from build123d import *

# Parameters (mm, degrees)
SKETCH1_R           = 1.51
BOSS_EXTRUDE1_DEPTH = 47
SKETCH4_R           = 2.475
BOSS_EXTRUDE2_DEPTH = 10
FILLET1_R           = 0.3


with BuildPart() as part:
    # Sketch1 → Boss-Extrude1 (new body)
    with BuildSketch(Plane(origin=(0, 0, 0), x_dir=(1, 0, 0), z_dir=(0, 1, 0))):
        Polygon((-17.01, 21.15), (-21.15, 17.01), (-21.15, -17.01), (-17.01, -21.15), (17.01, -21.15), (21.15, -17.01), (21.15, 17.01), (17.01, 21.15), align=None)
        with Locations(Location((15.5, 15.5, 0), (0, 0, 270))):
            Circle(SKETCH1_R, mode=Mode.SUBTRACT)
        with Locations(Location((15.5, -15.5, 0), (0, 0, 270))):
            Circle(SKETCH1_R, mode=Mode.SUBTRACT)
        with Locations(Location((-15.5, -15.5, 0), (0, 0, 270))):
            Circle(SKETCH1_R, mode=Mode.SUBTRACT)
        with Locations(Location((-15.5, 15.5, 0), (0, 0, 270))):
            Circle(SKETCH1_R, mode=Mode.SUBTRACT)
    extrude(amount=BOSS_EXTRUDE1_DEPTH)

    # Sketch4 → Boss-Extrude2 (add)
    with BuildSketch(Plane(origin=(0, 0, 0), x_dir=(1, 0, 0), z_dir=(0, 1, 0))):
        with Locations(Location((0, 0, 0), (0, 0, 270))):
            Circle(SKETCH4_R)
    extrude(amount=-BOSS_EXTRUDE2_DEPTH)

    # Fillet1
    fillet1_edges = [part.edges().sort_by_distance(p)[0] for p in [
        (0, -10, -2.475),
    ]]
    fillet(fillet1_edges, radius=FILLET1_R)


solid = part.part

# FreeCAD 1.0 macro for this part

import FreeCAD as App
import Part
import Sketcher
from FreeCAD import Vector


def edges_at(feature, points):
    """Names of the edges that pass closest to the given points."""
    edges = feature.Shape.Edges
    near = lambda p: min(range(len(edges)), key=lambda i: edges[i].distToShape(Part.Vertex(*p))[0])
    return sorted({f"Edge{near(p) + 1}" for p in points})

doc = App.newDocument("Part")
body = doc.addObject("PartDesign::Body", "Body")

# Sketch on XZ plane
sketch1 = body.newObject("Sketcher::SketchObject", "Sketch")
sketch1.AttachmentSupport = (doc.getObject("XZ_Plane"), [""])
sketch1.MapMode = "FlatFace"
sketch1.addGeometry([
    Part.LineSegment(Vector(-17, -21.1, 0), Vector(-21.1, -17, 0)),  # 0
    Part.LineSegment(Vector(-21.1, -17, 0), Vector(-21.1, 17, 0)),  # 1
    Part.LineSegment(Vector(-21.1, 17, 0), Vector(-17, 21.1, 0)),  # 2
    Part.LineSegment(Vector(-17, 21.1, 0), Vector(17, 21.1, 0)),  # 3
    Part.LineSegment(Vector(17, 21.1, 0), Vector(21.1, 17, 0)),  # 4
    Part.LineSegment(Vector(21.1, 17, 0), Vector(21.1, -17, 0)),  # 5
    Part.LineSegment(Vector(21.1, -17, 0), Vector(17, -21.1, 0)),  # 6
    Part.LineSegment(Vector(17, -21.1, 0), Vector(-17, -21.1, 0)),  # 7
    Part.Circle(Vector(-15.5, 15.5, 0), Vector(0, 0, 1), 1.5),  # 8
    Part.Circle(Vector(15.5, 15.5, 0), Vector(0, 0, 1), 1.5),  # 9
    Part.Circle(Vector(-15.5, -15.5, 0), Vector(0, 0, 1), 1.5),  # 10
    Part.Circle(Vector(15.5, -15.5, 0), Vector(0, 0, 1), 1.5),  # 11
], False)
sketch1.addConstraint([
    Sketcher.Constraint("Coincident", 0, 2, 1, 1),
    Sketcher.Constraint("Coincident", 1, 2, 2, 1),
    Sketcher.Constraint("Coincident", 2, 2, 3, 1),
    Sketcher.Constraint("Coincident", 3, 2, 4, 1),
    Sketcher.Constraint("Coincident", 4, 2, 5, 1),
    Sketcher.Constraint("Coincident", 5, 2, 6, 1),
    Sketcher.Constraint("Coincident", 6, 2, 7, 1),
    Sketcher.Constraint("Coincident", 7, 2, 0, 1),
    Sketcher.Constraint("Vertical", 1),
    Sketcher.Constraint("Horizontal", 3),
    Sketcher.Constraint("Vertical", 5),
    Sketcher.Constraint("Horizontal", 7),
    Sketcher.Constraint("Equal", 8, 9),
    Sketcher.Constraint("Equal", 9, 10),
    Sketcher.Constraint("Equal", 10, 11),
    Sketcher.Constraint("Symmetric", 9, 3, 10, 3, -1, 1),
    Sketcher.Constraint("Symmetric", 8, 3, 11, 3, -1, 1),
    Sketcher.Constraint("Symmetric", 0, 2, 4, 2, -1, 1),
    Sketcher.Constraint("Symmetric", 2, 2, 6, 2, -1, 1),
    Sketcher.Constraint("Symmetric", 8, 3, 9, 3, -2),
    Sketcher.Constraint("Perpendicular", 0, 2),
    Sketcher.Constraint("Perpendicular", 2, 4),
    Sketcher.Constraint("Perpendicular", 4, 6),
    Sketcher.Constraint("Horizontal", 1, 2, 4, 2),
    Sketcher.Constraint("Vertical", 3, 2, 6, 2),
    Sketcher.Constraint("Equal", 7, 1),
    Sketcher.Constraint("Diameter", 8, 3.02),
    Sketcher.Constraint("DistanceX", 8, 3, 9, 3, 31.0),
    Sketcher.Constraint("DistanceY", 10, 3, 8, 3, 31.0),
    Sketcher.Constraint("DistanceX", 3, 1, 3, 2, 34.02),
    Sketcher.Constraint("DistanceX", 0, 2, -1, 1, 21.15),
])
pad1 = body.newObject("PartDesign::Pad", "Pad")
pad1.Profile = sketch1
pad1.Length = 47
pad1.Reversed = True

# Sketch on XZ plane
sketch2 = body.newObject("Sketcher::SketchObject", "Sketch001")
sketch2.AttachmentSupport = (doc.getObject("XZ_Plane"), [""])
sketch2.MapMode = "FlatFace"
sketch2.addGeometry(Part.Circle(Vector(0, 0, 0), Vector(0, 0, 1), 2.5), False)
sketch2.addConstraint([
    Sketcher.Constraint("Coincident", 0, 3, -1, 1),
    Sketcher.Constraint("Diameter", 0, 4.95),
])
pad2 = body.newObject("PartDesign::Pad", "Pad001")
pad2.Profile = sketch2
pad2.Length = 10
doc.recompute()

fillet = body.newObject("PartDesign::Fillet", "Fillet")
fillet.Base = (pad2, edges_at(pad2, [(0, -10, -2.475)]))
fillet.Radius = 0.3

doc.recompute()
